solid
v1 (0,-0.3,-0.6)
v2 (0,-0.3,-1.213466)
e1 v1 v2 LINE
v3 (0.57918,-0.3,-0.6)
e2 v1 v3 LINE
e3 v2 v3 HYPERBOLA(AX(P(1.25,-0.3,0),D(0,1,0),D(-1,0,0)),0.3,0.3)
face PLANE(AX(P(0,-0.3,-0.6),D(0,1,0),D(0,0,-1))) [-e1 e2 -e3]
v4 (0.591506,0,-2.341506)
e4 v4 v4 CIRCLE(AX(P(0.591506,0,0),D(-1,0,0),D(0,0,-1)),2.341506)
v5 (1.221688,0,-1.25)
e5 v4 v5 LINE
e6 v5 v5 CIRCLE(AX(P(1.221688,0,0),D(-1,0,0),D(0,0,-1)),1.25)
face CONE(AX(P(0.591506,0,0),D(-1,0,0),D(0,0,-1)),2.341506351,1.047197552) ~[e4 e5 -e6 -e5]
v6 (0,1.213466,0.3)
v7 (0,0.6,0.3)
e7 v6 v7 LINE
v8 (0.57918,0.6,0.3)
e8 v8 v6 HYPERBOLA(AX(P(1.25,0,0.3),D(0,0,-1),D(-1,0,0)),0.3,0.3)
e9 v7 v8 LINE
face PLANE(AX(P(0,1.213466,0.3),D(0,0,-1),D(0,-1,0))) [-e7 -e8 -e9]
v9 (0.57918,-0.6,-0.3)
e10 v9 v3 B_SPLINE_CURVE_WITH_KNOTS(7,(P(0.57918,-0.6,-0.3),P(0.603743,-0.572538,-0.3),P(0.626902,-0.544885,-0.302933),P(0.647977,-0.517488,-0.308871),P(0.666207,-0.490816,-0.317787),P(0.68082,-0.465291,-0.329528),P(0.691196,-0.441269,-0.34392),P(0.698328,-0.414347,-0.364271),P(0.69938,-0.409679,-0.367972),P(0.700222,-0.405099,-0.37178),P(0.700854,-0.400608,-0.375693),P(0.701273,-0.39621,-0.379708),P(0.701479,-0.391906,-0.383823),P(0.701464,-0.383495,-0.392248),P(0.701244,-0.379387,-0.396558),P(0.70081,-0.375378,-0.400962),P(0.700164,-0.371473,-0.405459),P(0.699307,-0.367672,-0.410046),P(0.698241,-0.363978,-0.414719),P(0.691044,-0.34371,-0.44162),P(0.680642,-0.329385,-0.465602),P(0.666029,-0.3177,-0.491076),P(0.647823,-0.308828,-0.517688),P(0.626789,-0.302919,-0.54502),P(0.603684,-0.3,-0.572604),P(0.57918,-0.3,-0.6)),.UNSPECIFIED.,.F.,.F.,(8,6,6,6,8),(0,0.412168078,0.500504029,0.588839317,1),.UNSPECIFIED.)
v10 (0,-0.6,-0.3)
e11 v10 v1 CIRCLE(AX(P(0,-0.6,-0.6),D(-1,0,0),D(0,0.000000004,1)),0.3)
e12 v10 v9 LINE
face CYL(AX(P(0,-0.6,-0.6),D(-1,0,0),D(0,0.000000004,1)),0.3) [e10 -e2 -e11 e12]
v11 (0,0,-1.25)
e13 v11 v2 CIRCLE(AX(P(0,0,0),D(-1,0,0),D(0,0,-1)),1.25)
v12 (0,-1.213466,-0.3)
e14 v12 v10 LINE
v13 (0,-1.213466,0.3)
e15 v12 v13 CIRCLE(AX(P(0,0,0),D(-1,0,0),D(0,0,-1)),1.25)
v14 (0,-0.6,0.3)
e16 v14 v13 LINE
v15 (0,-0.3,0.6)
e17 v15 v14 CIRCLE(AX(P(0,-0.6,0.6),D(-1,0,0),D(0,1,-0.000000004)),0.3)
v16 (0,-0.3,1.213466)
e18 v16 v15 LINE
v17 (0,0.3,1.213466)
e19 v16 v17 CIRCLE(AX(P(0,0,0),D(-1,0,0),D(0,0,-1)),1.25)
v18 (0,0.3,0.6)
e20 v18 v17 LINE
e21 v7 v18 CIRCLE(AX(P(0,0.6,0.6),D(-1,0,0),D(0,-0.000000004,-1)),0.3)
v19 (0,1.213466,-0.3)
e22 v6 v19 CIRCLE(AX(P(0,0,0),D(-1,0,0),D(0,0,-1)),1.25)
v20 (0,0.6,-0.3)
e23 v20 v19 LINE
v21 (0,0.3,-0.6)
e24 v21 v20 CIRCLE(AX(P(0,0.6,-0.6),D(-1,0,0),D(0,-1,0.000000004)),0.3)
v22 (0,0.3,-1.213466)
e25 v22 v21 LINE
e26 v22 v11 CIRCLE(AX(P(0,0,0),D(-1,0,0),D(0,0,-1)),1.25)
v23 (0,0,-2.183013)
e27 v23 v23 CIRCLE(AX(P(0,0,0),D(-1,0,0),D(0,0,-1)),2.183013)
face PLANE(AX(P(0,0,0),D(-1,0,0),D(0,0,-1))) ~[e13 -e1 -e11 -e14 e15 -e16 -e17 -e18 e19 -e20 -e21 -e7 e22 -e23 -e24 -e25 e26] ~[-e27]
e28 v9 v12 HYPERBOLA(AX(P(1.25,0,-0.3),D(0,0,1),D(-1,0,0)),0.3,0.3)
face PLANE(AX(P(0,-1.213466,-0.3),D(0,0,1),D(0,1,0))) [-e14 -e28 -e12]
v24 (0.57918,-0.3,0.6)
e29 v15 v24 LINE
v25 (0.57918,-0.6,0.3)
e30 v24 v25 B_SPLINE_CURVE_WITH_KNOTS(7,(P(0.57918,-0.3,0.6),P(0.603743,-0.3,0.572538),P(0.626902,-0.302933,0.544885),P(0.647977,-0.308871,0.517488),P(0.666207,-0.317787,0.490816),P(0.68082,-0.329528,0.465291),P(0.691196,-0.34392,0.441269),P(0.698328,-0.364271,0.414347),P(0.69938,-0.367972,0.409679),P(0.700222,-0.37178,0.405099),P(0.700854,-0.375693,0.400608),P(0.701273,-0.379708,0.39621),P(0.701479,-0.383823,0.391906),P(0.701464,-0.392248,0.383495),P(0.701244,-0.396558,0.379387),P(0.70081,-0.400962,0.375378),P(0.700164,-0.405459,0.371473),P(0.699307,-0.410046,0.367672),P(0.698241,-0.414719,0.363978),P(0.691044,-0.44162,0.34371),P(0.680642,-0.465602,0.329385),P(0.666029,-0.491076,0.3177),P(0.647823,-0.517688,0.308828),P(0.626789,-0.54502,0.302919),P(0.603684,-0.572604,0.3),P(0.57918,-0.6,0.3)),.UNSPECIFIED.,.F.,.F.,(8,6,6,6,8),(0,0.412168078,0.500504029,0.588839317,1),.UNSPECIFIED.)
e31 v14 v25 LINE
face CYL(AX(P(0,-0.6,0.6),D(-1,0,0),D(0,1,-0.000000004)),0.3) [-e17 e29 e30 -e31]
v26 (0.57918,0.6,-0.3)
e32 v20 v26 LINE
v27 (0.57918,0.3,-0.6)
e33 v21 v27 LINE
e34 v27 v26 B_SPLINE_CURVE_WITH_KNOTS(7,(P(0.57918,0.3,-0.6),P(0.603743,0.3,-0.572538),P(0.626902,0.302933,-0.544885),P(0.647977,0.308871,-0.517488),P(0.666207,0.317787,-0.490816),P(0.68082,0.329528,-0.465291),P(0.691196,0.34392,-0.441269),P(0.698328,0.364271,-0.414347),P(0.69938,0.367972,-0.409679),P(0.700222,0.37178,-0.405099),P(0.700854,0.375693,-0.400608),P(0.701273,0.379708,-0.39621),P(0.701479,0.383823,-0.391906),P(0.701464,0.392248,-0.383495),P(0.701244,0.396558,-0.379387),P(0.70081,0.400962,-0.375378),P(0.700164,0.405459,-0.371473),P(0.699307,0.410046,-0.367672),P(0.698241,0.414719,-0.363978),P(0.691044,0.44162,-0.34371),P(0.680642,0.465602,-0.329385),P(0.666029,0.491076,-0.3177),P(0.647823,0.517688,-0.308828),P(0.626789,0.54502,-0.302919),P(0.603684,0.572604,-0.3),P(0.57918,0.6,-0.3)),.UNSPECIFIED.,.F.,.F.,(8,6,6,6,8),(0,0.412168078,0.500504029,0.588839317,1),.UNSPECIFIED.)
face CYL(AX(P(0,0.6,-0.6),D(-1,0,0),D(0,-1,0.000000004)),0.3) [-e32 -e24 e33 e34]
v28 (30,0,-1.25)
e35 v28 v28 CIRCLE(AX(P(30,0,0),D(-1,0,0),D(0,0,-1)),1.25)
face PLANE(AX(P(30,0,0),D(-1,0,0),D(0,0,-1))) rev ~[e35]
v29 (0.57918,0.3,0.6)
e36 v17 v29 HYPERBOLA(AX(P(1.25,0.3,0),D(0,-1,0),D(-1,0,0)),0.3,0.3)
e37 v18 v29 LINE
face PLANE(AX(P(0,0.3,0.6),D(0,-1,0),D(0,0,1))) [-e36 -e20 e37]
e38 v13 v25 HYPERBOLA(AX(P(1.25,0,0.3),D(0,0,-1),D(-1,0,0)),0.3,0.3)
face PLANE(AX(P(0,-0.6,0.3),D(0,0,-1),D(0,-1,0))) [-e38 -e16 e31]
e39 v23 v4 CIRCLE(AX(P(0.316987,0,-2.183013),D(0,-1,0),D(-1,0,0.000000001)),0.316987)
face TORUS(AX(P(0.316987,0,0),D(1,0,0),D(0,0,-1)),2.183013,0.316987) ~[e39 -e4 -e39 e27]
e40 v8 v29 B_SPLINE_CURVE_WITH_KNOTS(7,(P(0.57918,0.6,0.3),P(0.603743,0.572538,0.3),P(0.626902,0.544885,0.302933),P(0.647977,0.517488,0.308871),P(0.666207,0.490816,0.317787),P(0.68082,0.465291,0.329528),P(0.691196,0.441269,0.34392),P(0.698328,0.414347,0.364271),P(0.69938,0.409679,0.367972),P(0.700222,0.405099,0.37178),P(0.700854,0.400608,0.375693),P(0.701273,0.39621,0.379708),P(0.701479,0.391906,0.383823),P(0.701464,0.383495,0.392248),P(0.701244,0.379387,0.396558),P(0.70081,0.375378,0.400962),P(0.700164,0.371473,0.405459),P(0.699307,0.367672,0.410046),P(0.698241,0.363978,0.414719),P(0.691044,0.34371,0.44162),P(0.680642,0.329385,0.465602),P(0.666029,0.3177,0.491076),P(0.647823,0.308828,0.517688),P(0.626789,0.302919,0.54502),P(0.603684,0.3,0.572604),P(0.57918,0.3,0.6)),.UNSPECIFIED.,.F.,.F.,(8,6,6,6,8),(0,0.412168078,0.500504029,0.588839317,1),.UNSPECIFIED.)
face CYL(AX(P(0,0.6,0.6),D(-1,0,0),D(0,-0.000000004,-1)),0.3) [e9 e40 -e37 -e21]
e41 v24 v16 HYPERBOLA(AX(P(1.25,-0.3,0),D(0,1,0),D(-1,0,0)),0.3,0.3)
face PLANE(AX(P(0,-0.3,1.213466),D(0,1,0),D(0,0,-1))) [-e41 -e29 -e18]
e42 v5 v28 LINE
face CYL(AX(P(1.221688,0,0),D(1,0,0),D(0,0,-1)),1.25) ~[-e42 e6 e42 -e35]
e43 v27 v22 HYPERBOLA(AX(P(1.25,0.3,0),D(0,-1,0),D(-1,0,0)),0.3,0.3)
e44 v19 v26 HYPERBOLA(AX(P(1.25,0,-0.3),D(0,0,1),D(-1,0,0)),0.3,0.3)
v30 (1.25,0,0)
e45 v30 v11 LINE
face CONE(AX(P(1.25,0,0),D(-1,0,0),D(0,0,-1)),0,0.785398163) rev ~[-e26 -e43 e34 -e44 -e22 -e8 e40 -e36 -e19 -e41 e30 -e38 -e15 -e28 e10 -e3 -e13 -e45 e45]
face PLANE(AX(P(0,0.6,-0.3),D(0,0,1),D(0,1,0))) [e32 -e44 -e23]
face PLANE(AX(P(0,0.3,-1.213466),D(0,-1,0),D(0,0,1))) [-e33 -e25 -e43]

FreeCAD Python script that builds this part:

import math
import FreeCAD as App
import Part
import Sketcher
Q = App.Units.Quantity

doc = App.newDocument("Part")
params = doc.addObject("Spreadsheet::Sheet", "Params")
for row, (alias, value) in enumerate([
    ("sketch1_width", "28.75 mm"),
    ("revolution_angle", "360 deg"),
    ("sketch2_radius", "1 mm"),
    ("sketch2_radius2", "0.3 mm"),
    ("pad1_length", "1 mm"),
], start=1):
    params.set(f"A{row}", alias)
    params.set(f"B{row}", "=" + value)
    params.setAlias(f"B{row}", alias)

body = doc.addObject("PartDesign::Body", "Body")

# Sketch on XZ plane
sketch1 = body.newObject("Sketcher::SketchObject", "Sketch")
sketch1.AttachmentSupport = (doc.getObject("XZ_Plane"), [""])
sketch1.MapMode = "FlatFace"
sketch1.addGeometry(Part.LineSegment(App.Vector(30, -1.25, 0), App.Vector(1.221688, -1.25, 0)), False)
sketch1.addGeometry(Part.LineSegment(App.Vector(1.221688, -1.25, 0), App.Vector(0.591506, -2.341506, 0)), False)
sketch1.addGeometry(Part.ArcOfCircle(Part.Circle(App.Vector(0.316987, -2.183013, 0), App.Vector(0, 0, 1), 0.316987), math.radians(180), math.radians(330)), False)
sketch1.addGeometry(Part.LineSegment(App.Vector(0, -2.183013, 0), App.Vector(0, -1.25, 0)), False)
sketch1.addGeometry(Part.LineSegment(App.Vector(0, -1.25, 0), App.Vector(1.25, 0, 0)), False)
sketch1.addGeometry(Part.LineSegment(App.Vector(1.25, 0, 0), App.Vector(30, 0, 0)), False)
sketch1.addGeometry(Part.LineSegment(App.Vector(30, 0, 0), App.Vector(30, -1.25, 0)), False)
sketch1.addConstraint(Sketcher.Constraint("Coincident", 0, 2, 1, 1))
sketch1.addConstraint(Sketcher.Constraint("Tangent", 1, 2, 2, 2))
sketch1.addConstraint(Sketcher.Constraint("Tangent", 2, 1, 3, 1))
sketch1.addConstraint(Sketcher.Constraint("Coincident", 3, 2, 4, 1))
sketch1.addConstraint(Sketcher.Constraint("Coincident", 4, 2, 5, 1))
sketch1.addConstraint(Sketcher.Constraint("Coincident", 5, 2, 6, 1))
sketch1.addConstraint(Sketcher.Constraint("Coincident", 6, 2, 0, 1))
sketch1.addConstraint(Sketcher.Constraint("Horizontal", 0))
sketch1.addConstraint(Sketcher.Constraint("Vertical", 3))
sketch1.addConstraint(Sketcher.Constraint("Horizontal", 5))
sketch1.addConstraint(Sketcher.Constraint("Vertical", 6))
sketch1.addConstraint(Sketcher.Constraint("PointOnObject", 2, 1, -2))
sketch1.addConstraint(Sketcher.Constraint("PointOnObject", 4, 2, -1))
sketch1.addConstraint(Sketcher.Constraint("Horizontal", 0, 2, 3, 2))
sketch1.addConstraint(Sketcher.Constraint("Angle", 1, Q("-120 deg")))
sketch1.addConstraint(Sketcher.Constraint("Angle", 4, Q("45 deg")))
sketch1.addConstraint(Sketcher.Constraint("DistanceX", -1, 1, 5, 2, 30.0))
sketch1.addConstraint(Sketcher.Constraint("DistanceX", 5, 1, 5, 2, 28.75))
sketch1.addConstraint(Sketcher.Constraint("Radius", 2, 0.316987))
sketch1.addConstraint(Sketcher.Constraint("DistanceX", 2, 3, 0, 2, 0.904701))
sketch1.setExpression("Constraints[17]", "Params.sketch1_width")
revolution = body.newObject("PartDesign::Revolution", "Revolution")
revolution.Profile = sketch1
revolution.ReferenceAxis = (sketch1, ["H_Axis"])
revolution.setExpression("Angle", "Params.revolution_angle")

# Sketch on YZ plane
sketch2 = body.newObject("Sketcher::SketchObject", "Sketch001")
sketch2.AttachmentSupport = (doc.getObject("YZ_Plane"), [""])
sketch2.MapMode = "FlatFace"
sketch2.addGeometry(Part.LineSegment(App.Vector(0.6, 0.3, 0), App.Vector(1.213466, 0.3, 0)), False)
sketch2.addGeometry(Part.ArcOfCircle(Part.Circle(App.Vector(0.216923, 0.216923, 0), App.Vector(0, 0, 1), 1), math.radians(4.765455), math.radians(85.234545)), False)
sketch2.addGeometry(Part.LineSegment(App.Vector(0.3, 1.213466, 0), App.Vector(0.3, 0.6, 0)), False)
sketch2.addGeometry(Part.ArcOfCircle(Part.Circle(App.Vector(0.6, 0.6, 0), App.Vector(0, 0, 1), 0.3), math.radians(-180), math.radians(-90)), False)
sketch2.addConstraint(Sketcher.Constraint("Coincident", 0, 2, 1, 1))
sketch2.addConstraint(Sketcher.Constraint("Coincident", 1, 2, 2, 1))
sketch2.addConstraint(Sketcher.Constraint("Tangent", 2, 2, 3, 1))
sketch2.addConstraint(Sketcher.Constraint("Tangent", 3, 2, 0, 1))
sketch2.addConstraint(Sketcher.Constraint("Horizontal", 0))
sketch2.addConstraint(Sketcher.Constraint("Vertical", 2))
sketch2.addConstraint(Sketcher.Constraint("Equal", 0, 2))
sketch2.addConstraint(Sketcher.Constraint("Radius", 1, 1.0))
sketch2.addConstraint(Sketcher.Constraint("Radius", 3, 0.3))
sketch2.addConstraint(Sketcher.Constraint("DistanceX", -1, 1, 3, 3, 0.6))
sketch2.addConstraint(Sketcher.Constraint("DistanceY", -1, 1, 3, 3, 0.6))
sketch2.addConstraint(Sketcher.Constraint("DistanceX", 0, 1, 0, 2, 0.613466))
sketch2.setExpression("Constraints[7]", "Params.sketch2_radius")
sketch2.setExpression("Constraints[8]", "Params.sketch2_radius2")
pad1 = body.newObject("PartDesign::Pad", "Pad")
pad1.Profile = sketch2
pad1.setExpression("Length", "Params.pad1_length")
doc.recompute()

polarpattern = body.newObject("PartDesign::PolarPattern", "PolarPattern")
polarpattern.Originals = [pad1]
polarpattern.Axis = (doc.getObject("X_Axis"), [""])
polarpattern.Angle = 360
polarpattern.Occurrences = 4
body.Tip = polarpattern

doc.recompute()
